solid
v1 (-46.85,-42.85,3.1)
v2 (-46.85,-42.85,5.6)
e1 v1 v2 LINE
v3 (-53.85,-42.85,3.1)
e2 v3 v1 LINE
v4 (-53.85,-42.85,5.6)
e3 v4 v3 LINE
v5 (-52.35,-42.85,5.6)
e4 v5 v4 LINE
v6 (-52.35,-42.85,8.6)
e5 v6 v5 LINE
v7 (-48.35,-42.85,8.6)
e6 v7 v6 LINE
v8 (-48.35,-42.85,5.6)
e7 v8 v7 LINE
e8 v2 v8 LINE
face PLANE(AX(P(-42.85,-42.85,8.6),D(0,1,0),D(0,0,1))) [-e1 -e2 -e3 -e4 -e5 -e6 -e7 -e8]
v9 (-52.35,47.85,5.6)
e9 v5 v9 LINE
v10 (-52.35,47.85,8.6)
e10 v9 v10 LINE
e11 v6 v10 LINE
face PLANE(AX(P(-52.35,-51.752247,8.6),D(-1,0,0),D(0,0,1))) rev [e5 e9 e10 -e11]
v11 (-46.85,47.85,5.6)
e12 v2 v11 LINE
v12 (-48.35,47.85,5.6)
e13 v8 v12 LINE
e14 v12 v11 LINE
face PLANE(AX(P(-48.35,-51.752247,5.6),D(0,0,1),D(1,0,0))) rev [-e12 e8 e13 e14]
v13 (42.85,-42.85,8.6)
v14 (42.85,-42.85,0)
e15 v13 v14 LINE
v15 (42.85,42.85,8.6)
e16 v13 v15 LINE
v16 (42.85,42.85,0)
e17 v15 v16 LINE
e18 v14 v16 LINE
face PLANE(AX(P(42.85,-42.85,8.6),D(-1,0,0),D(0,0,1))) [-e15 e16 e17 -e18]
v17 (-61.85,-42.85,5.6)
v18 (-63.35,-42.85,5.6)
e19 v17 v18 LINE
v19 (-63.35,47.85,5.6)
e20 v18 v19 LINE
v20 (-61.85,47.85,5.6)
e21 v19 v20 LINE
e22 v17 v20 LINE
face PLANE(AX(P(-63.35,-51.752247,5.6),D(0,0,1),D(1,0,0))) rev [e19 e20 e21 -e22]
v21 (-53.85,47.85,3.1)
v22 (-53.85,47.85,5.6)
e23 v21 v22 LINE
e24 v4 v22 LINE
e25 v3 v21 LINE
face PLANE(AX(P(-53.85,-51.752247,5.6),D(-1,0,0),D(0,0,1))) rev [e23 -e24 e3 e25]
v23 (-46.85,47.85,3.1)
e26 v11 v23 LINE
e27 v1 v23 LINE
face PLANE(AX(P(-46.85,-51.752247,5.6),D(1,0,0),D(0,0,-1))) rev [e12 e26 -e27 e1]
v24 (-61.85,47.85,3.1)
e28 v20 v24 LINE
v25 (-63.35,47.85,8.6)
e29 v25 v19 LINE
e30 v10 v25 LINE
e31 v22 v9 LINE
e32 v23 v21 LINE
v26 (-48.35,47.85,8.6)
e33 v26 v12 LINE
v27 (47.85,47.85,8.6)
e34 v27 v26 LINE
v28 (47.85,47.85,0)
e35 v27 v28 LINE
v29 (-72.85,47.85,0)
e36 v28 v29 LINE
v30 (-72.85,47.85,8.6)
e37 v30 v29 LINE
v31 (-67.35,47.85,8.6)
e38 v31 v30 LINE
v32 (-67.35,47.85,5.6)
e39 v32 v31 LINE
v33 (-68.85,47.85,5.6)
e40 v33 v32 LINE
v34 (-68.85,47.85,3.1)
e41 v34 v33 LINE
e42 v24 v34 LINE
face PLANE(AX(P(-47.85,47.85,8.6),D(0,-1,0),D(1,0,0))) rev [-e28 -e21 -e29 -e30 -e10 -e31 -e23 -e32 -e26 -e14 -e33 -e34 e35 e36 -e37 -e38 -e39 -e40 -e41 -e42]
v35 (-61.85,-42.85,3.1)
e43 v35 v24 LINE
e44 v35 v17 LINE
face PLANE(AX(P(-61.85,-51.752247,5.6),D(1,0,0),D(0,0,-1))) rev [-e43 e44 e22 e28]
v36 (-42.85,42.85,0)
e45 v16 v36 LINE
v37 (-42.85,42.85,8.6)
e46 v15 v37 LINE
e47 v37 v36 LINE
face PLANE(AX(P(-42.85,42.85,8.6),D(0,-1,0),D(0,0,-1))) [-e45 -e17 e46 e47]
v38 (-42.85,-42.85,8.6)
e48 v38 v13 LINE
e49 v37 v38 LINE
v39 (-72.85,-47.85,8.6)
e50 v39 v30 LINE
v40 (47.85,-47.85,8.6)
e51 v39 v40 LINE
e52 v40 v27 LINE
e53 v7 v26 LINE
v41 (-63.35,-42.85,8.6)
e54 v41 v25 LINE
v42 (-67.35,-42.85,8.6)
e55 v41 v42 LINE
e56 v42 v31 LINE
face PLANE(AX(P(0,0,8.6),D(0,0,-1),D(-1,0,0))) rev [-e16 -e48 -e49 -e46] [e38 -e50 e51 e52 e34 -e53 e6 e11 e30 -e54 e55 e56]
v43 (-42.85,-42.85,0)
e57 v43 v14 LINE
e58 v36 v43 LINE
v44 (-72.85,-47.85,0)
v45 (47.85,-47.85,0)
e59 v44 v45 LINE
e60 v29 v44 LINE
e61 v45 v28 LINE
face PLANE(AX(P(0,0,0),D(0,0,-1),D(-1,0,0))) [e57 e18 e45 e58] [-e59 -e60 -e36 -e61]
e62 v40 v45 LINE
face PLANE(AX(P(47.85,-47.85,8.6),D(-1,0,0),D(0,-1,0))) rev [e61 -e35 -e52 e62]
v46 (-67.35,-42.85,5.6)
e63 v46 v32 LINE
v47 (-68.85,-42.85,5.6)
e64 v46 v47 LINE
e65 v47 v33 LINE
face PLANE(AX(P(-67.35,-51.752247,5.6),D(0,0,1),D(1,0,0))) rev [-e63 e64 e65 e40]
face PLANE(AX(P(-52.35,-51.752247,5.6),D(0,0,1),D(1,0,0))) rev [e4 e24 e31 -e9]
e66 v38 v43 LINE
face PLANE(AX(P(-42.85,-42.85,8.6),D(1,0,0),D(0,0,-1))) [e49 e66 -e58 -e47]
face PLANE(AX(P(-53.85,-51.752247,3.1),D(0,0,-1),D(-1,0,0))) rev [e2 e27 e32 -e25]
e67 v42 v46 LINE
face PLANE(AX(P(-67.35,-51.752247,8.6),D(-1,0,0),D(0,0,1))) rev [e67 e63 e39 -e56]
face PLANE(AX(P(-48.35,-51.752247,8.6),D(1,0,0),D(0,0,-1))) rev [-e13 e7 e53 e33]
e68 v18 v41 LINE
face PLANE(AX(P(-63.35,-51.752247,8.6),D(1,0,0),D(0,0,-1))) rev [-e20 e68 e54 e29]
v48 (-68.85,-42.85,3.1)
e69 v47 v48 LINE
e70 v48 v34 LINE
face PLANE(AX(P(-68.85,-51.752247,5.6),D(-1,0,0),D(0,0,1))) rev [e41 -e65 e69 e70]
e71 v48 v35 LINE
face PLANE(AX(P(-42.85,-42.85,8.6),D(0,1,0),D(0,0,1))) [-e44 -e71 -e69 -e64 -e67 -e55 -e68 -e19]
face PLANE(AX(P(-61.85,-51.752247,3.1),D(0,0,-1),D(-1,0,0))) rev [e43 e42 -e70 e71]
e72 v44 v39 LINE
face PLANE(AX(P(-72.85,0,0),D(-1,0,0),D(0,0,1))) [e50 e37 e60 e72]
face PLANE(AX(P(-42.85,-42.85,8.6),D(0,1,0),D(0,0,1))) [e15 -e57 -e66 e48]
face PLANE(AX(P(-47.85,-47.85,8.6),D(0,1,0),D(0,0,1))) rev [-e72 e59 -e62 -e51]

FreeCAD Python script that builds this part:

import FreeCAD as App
import Part
import Sketcher

V = App.Vector
Q = App.Units.Quantity

doc = App.newDocument("Part")
params = doc.addObject("Spreadsheet::Sheet", "Params")
for row, (alias, value) in enumerate([
    ("sketch1_width", "95.7 mm"),
    ("sketch1_width2", "85.7 mm"),
    ("pad1_length", "8.6 mm"),
    ("sketch2_width", "95.7 mm"),
    ("sketch2_height", "8.6 mm"),
    ("pad2_length", "25 mm"),
    ("sketch3_width", "4 mm"),
    ("sketch3_width2", "7 mm"),
    ("sketch3_height", "3 mm"),
    ("sketch3_height2", "2.5 mm"),
    ("pocket1_length", "90.7 mm"),
], start=1):
    params.set(f"A{row}", alias)
    params.set(f"B{row}", "=" + value)
    params.setAlias(f"B{row}", alias)

body = doc.addObject("PartDesign::Body", "Body")

# Sketch on XY plane
sketch1 = body.newObject("Sketcher::SketchObject", "Sketch")
sketch1.AttachmentSupport = (doc.getObject("XY_Plane"), [""])
sketch1.MapMode = "FlatFace"
sketch1.addGeometry([
    Part.LineSegment(V(-48, 48, 0), V(-48, -48, 0)),  # 0
    Part.LineSegment(V(-48, -48, 0), V(48, -48, 0)),  # 1
    Part.LineSegment(V(48, -48, 0), V(48, 48, 0)),  # 2
    Part.LineSegment(V(48, 48, 0), V(-48, 48, 0)),  # 3
    Part.LineSegment(V(43, -43, 0), V(-43, -43, 0)),  # 4
    Part.LineSegment(V(-43, -43, 0), V(-43, 43, 0)),  # 5
    Part.LineSegment(V(-43, 43, 0), V(43, 43, 0)),  # 6
    Part.LineSegment(V(43, 43, 0), V(43, -43, 0)),  # 7
], False)
sketch1.addConstraint([
    Sketcher.Constraint("Coincident", 0, 2, 1, 1),
    Sketcher.Constraint("Coincident", 1, 2, 2, 1),
    Sketcher.Constraint("Coincident", 2, 2, 3, 1),
    Sketcher.Constraint("Coincident", 3, 2, 0, 1),
    Sketcher.Constraint("Coincident", 4, 2, 5, 1),
    Sketcher.Constraint("Coincident", 5, 2, 6, 1),
    Sketcher.Constraint("Coincident", 6, 2, 7, 1),
    Sketcher.Constraint("Coincident", 7, 2, 4, 1),
    Sketcher.Constraint("Vertical", 0),
    Sketcher.Constraint("Horizontal", 1),
    Sketcher.Constraint("Vertical", 2),
    Sketcher.Constraint("Horizontal", 3),
    Sketcher.Constraint("Horizontal", 4),
    Sketcher.Constraint("Vertical", 5),
    Sketcher.Constraint("Horizontal", 6),
    Sketcher.Constraint("Vertical", 7),
    Sketcher.Constraint("Symmetric", 0, 2, 2, 2, -1, 1),
    Sketcher.Constraint("Symmetric", 4, 2, 6, 2, -1, 1),
    Sketcher.Constraint("Equal", 3, 0),
    Sketcher.Constraint("Equal", 6, 5),
    Sketcher.Constraint("DistanceX", 1, 1, 1, 2, Q("95.7 mm")),
    Sketcher.Constraint("DistanceX", 4, 2, 4, 1, Q("85.7 mm")),
])
sketch1.setExpression("Constraints[20]", "Params.sketch1_width")
sketch1.setExpression("Constraints[21]", "Params.sketch1_width2")
pad1 = body.newObject("PartDesign::Pad", "Pad")
pad1.Profile = sketch1
pad1.setExpression("Length", "Params.pad1_length")

# Sketch on YZ plane
sketch2 = body.newObject("Sketcher::SketchObject", "Sketch001")
sketch2.AttachmentSupport = (doc.getObject("YZ_Plane"), [""])
sketch2.MapMode = "FlatFace"
sketch2.AttachmentOffset = App.Placement(V(0, 0, -47.85), App.Rotation())
sketch2.addGeometry([
    Part.LineSegment(V(48, 0, 0), V(-48, 0, 0)),
    Part.LineSegment(V(-48, 0, 0), V(-48, 9, 0)),
    Part.LineSegment(V(-48, 9, 0), V(48, 9, 0)),
    Part.LineSegment(V(48, 9, 0), V(48, 0, 0)),
], False)
sketch2.addConstraint([
    Sketcher.Constraint("Coincident", 0, 2, 1, 1),
    Sketcher.Constraint("Coincident", 1, 2, 2, 1),
    Sketcher.Constraint("Coincident", 2, 2, 3, 1),
    Sketcher.Constraint("Coincident", 3, 2, 0, 1),
    Sketcher.Constraint("Horizontal", 0),
    Sketcher.Constraint("Vertical", 1),
    Sketcher.Constraint("Horizontal", 2),
    Sketcher.Constraint("Vertical", 3),
    Sketcher.Constraint("Symmetric", 0, 2, 3, 2, -1, 1),
    Sketcher.Constraint("DistanceX", 0, 2, 0, 1, Q("95.7 mm")),
    Sketcher.Constraint("DistanceY", 1, 1, 1, 2, Q("8.6 mm")),
])
sketch2.setExpression("Constraints[9]", "Params.sketch2_width")
sketch2.setExpression("Constraints[10]", "Params.sketch2_height")
pad2 = body.newObject("PartDesign::Pad", "Pad001")
pad2.Profile = sketch2
pad2.setExpression("Length", "Params.pad2_length")
pad2.Reversed = True

# Sketch on XZ plane
sketch3 = body.newObject("Sketcher::SketchObject", "Sketch002")
sketch3.AttachmentSupport = (doc.getObject("XZ_Plane"), [""])
sketch3.MapMode = "FlatFace"
sketch3.AttachmentOffset = App.Placement(V(0, 0, -47.85), App.Rotation())
sketch3.addGeometry([
    Part.LineSegment(V(-67.3, 8.6, 0), V(-63.4, 8.6, 0)),  # 0
    Part.LineSegment(V(-63.4, 8.6, 0), V(-63.4, 5.6, 0)),  # 1
    Part.LineSegment(V(-63.4, 5.6, 0), V(-61.9, 5.6, 0)),  # 2
    Part.LineSegment(V(-61.9, 5.6, 0), V(-61.9, 3.1, 0)),  # 3
    Part.LineSegment(V(-61.9, 3.1, 0), V(-68.8, 3.1, 0)),  # 4
    Part.LineSegment(V(-68.8, 3.1, 0), V(-68.8, 5.6, 0)),  # 5
    Part.LineSegment(V(-68.8, 5.6, 0), V(-67.3, 5.6, 0)),  # 6
    Part.LineSegment(V(-67.3, 5.6, 0), V(-67.3, 8.6, 0)),  # 7
    Part.LineSegment(V(-53.9, 3.1, 0), V(-53.9, 5.6, 0)),  # 8
    Part.LineSegment(V(-53.9, 5.6, 0), V(-52.4, 5.6, 0)),  # 9
    Part.LineSegment(V(-52.4, 5.6, 0), V(-52.4, 8.6, 0)),  # 10
    Part.LineSegment(V(-52.4, 8.6, 0), V(-48.4, 8.6, 0)),  # 11
    Part.LineSegment(V(-48.4, 8.6, 0), V(-48.4, 5.6, 0)),  # 12
    Part.LineSegment(V(-48.4, 5.6, 0), V(-46.9, 5.6, 0)),  # 13
    Part.LineSegment(V(-46.9, 5.6, 0), V(-46.9, 3.1, 0)),  # 14
    Part.LineSegment(V(-46.9, 3.1, 0), V(-53.9, 3.1, 0)),  # 15
], False)
sketch3.addConstraint([
    Sketcher.Constraint("Coincident", 0, 2, 1, 1),
    Sketcher.Constraint("Coincident", 1, 2, 2, 1),
    Sketcher.Constraint("Coincident", 2, 2, 3, 1),
    Sketcher.Constraint("Coincident", 3, 2, 4, 1),
    Sketcher.Constraint("Coincident", 4, 2, 5, 1),
    Sketcher.Constraint("Coincident", 5, 2, 6, 1),
    Sketcher.Constraint("Coincident", 6, 2, 7, 1),
    Sketcher.Constraint("Coincident", 7, 2, 0, 1),
    Sketcher.Constraint("Coincident", 8, 2, 9, 1),
    Sketcher.Constraint("Coincident", 9, 2, 10, 1),
    Sketcher.Constraint("Coincident", 10, 2, 11, 1),
    Sketcher.Constraint("Coincident", 11, 2, 12, 1),
    Sketcher.Constraint("Coincident", 12, 2, 13, 1),
    Sketcher.Constraint("Coincident", 13, 2, 14, 1),
    Sketcher.Constraint("Coincident", 14, 2, 15, 1),
    Sketcher.Constraint("Coincident", 15, 2, 8, 1),
    Sketcher.Constraint("Horizontal", 0),
    Sketcher.Constraint("Vertical", 1),
    Sketcher.Constraint("Horizontal", 2),
    Sketcher.Constraint("Vertical", 3),
    Sketcher.Constraint("Horizontal", 4),
    Sketcher.Constraint("Vertical", 5),
    Sketcher.Constraint("Horizontal", 6),
    Sketcher.Constraint("Vertical", 7),
    Sketcher.Constraint("Vertical", 8),
    Sketcher.Constraint("Horizontal", 9),
    Sketcher.Constraint("Vertical", 10),
    Sketcher.Constraint("Horizontal", 11),
    Sketcher.Constraint("Vertical", 12),
    Sketcher.Constraint("Horizontal", 13),
    Sketcher.Constraint("Vertical", 14),
    Sketcher.Constraint("Horizontal", 15),
    Sketcher.Constraint("Horizontal", 2, 2, 5, 2),
    Sketcher.Constraint("Horizontal", 6, 2, 8, 2),
    Sketcher.Constraint("Horizontal", 7, 2, 10, 2),
    Sketcher.Constraint("Horizontal", 9, 2, 12, 2),
    Sketcher.Constraint("Horizontal", 4, 2, 14, 2),
    Sketcher.Constraint("Equal", 2, 6),
    Sketcher.Constraint("Equal", 6, 9),
    Sketcher.Constraint("Equal", 0, 11),
    Sketcher.Constraint("Equal", 9, 13),
    Sketcher.Constraint("DistanceX", 0, 1, 0, 2, Q("4 mm")),
    Sketcher.Constraint("DistanceX", 4, 2, 4, 1, Q("7 mm")),
    Sketcher.Constraint("DistanceY", 1, 2, 1, 1, Q("3 mm")),
    Sketcher.Constraint("DistanceY", 3, 2, 3, 1, Q("2.5 mm")),
    Sketcher.Constraint("DistanceX", 2, 2, 8, 2, Q("8 mm")),
    Sketcher.Constraint("DistanceY", -1, 1, 0, 2, Q("8.6 mm")),
    Sketcher.Constraint("DistanceX", 0, 2, -1, 1, Q("63.35 mm")),
])
sketch3.setExpression("Constraints[41]", "Params.sketch3_width")
sketch3.setExpression("Constraints[42]", "Params.sketch3_width2")
sketch3.setExpression("Constraints[43]", "Params.sketch3_height")
sketch3.setExpression("Constraints[44]", "Params.sketch3_height2")
pocket1 = body.newObject("PartDesign::Pocket", "Pocket")
pocket1.Profile = sketch3
pocket1.setExpression("Length", "Params.pocket1_length")
pocket1.Reversed = True

doc.recompute()
